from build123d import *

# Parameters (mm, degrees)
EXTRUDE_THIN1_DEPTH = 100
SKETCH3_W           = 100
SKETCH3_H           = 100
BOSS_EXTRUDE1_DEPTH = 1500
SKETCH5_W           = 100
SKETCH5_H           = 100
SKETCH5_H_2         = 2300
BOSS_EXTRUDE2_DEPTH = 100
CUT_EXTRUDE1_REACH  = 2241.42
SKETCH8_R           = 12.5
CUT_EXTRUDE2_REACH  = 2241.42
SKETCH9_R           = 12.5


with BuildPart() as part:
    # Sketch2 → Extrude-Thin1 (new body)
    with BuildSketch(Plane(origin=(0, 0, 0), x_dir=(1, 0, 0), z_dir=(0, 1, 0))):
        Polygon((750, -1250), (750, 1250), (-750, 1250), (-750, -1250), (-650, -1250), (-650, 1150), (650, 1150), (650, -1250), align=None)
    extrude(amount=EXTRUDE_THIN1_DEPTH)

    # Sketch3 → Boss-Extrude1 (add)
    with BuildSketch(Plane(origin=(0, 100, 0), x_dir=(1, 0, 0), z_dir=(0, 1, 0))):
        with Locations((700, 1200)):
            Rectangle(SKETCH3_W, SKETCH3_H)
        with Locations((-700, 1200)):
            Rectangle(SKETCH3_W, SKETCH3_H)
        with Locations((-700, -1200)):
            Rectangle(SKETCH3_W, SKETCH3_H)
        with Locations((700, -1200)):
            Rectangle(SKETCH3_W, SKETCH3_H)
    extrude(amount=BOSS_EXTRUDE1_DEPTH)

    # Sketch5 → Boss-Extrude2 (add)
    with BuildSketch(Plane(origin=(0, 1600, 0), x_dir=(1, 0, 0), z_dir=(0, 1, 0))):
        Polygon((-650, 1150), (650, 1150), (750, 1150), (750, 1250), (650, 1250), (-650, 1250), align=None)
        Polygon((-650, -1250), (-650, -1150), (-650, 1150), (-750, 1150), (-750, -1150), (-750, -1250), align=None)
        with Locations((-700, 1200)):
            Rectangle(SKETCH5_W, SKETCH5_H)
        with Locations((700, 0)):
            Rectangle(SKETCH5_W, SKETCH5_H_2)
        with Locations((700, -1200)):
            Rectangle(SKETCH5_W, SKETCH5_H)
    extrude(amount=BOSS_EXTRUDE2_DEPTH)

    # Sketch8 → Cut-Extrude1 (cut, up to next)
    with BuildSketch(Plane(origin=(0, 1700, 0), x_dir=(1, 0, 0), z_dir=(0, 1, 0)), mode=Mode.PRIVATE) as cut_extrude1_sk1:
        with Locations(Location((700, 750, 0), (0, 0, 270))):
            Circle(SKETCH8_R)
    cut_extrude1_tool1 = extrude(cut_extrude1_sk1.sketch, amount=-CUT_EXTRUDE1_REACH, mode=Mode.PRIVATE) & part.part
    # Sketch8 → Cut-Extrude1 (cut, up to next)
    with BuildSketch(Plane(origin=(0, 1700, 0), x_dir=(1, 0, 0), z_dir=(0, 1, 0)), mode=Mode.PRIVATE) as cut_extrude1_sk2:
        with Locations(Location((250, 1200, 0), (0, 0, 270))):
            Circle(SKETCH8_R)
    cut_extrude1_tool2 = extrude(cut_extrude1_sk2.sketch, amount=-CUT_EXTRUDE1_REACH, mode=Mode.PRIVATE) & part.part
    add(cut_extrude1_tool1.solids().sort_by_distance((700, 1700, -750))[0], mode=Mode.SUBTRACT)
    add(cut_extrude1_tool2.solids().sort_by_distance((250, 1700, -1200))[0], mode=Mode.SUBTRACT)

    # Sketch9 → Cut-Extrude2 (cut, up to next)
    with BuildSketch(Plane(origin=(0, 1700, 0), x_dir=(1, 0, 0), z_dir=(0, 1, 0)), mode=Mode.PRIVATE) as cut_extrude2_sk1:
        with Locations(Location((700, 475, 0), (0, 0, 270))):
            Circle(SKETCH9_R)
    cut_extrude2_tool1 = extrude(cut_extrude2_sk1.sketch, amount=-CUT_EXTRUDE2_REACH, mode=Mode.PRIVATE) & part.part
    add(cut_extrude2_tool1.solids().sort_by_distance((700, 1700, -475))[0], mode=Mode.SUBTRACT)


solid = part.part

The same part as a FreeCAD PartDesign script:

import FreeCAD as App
import Part
import Sketcher

doc = App.newDocument("Part")
params = doc.addObject("Spreadsheet::Sheet", "Params")
for row, (alias, value) in enumerate([
    ("sketch1_width", "1500 mm"),
    ("sketch1_width2", "100 mm"),
    ("sketch1_height", "2500 mm"),
    ("sketch1_height2", "2400 mm"),
    ("pad1_length", "100 mm"),
    ("sketch2_width", "100 mm"),
    ("pad2_length", "1500 mm"),
    ("sketch3_width", "1300 mm"),
    ("sketch3_width2", "100 mm"),
    ("sketch3_height", "2400 mm"),
    ("sketch3_height2", "2500 mm"),
    ("pad3_length", "100 mm"),
    ("sketch4_diameter", "25 mm"),
    ("sketch5_diameter", "25 mm"),
    ("sketch6_diameter", "25 mm"),
], start=1):
    params.set(f"A{row}", alias)
    params.set(f"B{row}", "=" + value)
    params.setAlias(f"B{row}", alias)

body = doc.addObject("PartDesign::Body", "Body")

# Sketch on XZ plane
sketch1 = body.newObject("Sketcher::SketchObject", "Sketch")
sketch1.AttachmentSupport = (doc.getObject("XZ_Plane"), [""])
sketch1.MapMode = "FlatFace"
sketch1.addGeometry([
    Part.LineSegment(App.Vector(750, 1250, 0), App.Vector(750, -1250, 0)),  # 0
    Part.LineSegment(App.Vector(750, -1250, 0), App.Vector(-750, -1250, 0)),  # 1
    Part.LineSegment(App.Vector(-750, -1250, 0), App.Vector(-750, 1250, 0)),  # 2
    Part.LineSegment(App.Vector(-750, 1250, 0), App.Vector(-650, 1250, 0)),  # 3
    Part.LineSegment(App.Vector(-650, 1250, 0), App.Vector(-650, -1150, 0)),  # 4
    Part.LineSegment(App.Vector(-650, -1150, 0), App.Vector(650, -1150, 0)),  # 5
    Part.LineSegment(App.Vector(650, -1150, 0), App.Vector(650, 1250, 0)),  # 6
    Part.LineSegment(App.Vector(650, 1250, 0), App.Vector(750, 1250, 0)),  # 7
], False)
sketch1.addConstraint([
    Sketcher.Constraint("Coincident", 0, 2, 1, 1),
    Sketcher.Constraint("Coincident", 1, 2, 2, 1),
    Sketcher.Constraint("Coincident", 2, 2, 3, 1),
    Sketcher.Constraint("Coincident", 3, 2, 4, 1),
    Sketcher.Constraint("Coincident", 4, 2, 5, 1),
    Sketcher.Constraint("Coincident", 5, 2, 6, 1),
    Sketcher.Constraint("Coincident", 6, 2, 7, 1),
    Sketcher.Constraint("Coincident", 7, 2, 0, 1),
    Sketcher.Constraint("Vertical", 0),
    Sketcher.Constraint("Horizontal", 1),
    Sketcher.Constraint("Vertical", 2),
    Sketcher.Constraint("Horizontal", 3),
    Sketcher.Constraint("Vertical", 4),
    Sketcher.Constraint("Horizontal", 5),
    Sketcher.Constraint("Vertical", 6),
    Sketcher.Constraint("Horizontal", 7),
    Sketcher.Constraint("Symmetric", 0, 2, 2, 2, -1, 1),
    Sketcher.Constraint("Symmetric", 3, 2, 6, 2, -2),
    Sketcher.Constraint("DistanceX", 1, 2, 1, 1, 1500.0),
    Sketcher.Constraint("DistanceX", 3, 1, 3, 2, 100.0),
    Sketcher.Constraint("DistanceY", 0, 2, 0, 1, 2500.0),
    Sketcher.Constraint("DistanceY", 4, 2, 4, 1, 2400.0),
])
sketch1.setExpression("Constraints[18]", "Params.sketch1_width")
sketch1.setExpression("Constraints[19]", "Params.sketch1_width2")
sketch1.setExpression("Constraints[20]", "Params.sketch1_height")
sketch1.setExpression("Constraints[21]", "Params.sketch1_height2")
pad1 = body.newObject("PartDesign::Pad", "Pad")
pad1.Profile = sketch1
pad1.setExpression("Length", "Params.pad1_length")
pad1.Reversed = True

# Sketch on XZ plane
sketch2 = body.newObject("Sketcher::SketchObject", "Sketch001")
sketch2.AttachmentSupport = (doc.getObject("XZ_Plane"), [""])
sketch2.MapMode = "FlatFace"
sketch2.AttachmentOffset = App.Placement(App.Vector(0, 0, -100), App.Rotation())
sketch2.addGeometry([
    Part.LineSegment(App.Vector(650, -1250, 0), App.Vector(650, -1150, 0)),  # 0
    Part.LineSegment(App.Vector(650, -1150, 0), App.Vector(750, -1150, 0)),  # 1
    Part.LineSegment(App.Vector(750, -1150, 0), App.Vector(750, -1250, 0)),  # 2
    Part.LineSegment(App.Vector(750, -1250, 0), App.Vector(650, -1250, 0)),  # 3
    Part.LineSegment(App.Vector(-750, -1250, 0), App.Vector(-750, -1150, 0)),  # 4
    Part.LineSegment(App.Vector(-750, -1150, 0), App.Vector(-650, -1150, 0)),  # 5
    Part.LineSegment(App.Vector(-650, -1150, 0), App.Vector(-650, -1250, 0)),  # 6
    Part.LineSegment(App.Vector(-650, -1250, 0), App.Vector(-750, -1250, 0)),  # 7
    Part.LineSegment(App.Vector(-750, 1150, 0), App.Vector(-750, 1250, 0)),  # 8
    Part.LineSegment(App.Vector(-750, 1250, 0), App.Vector(-650, 1250, 0)),  # 9
    Part.LineSegment(App.Vector(-650, 1250, 0), App.Vector(-650, 1150, 0)),  # 10
    Part.LineSegment(App.Vector(-650, 1150, 0), App.Vector(-750, 1150, 0)),  # 11
    Part.LineSegment(App.Vector(650, 1150, 0), App.Vector(650, 1250, 0)),  # 12
    Part.LineSegment(App.Vector(650, 1250, 0), App.Vector(750, 1250, 0)),  # 13
    Part.LineSegment(App.Vector(750, 1250, 0), App.Vector(750, 1150, 0)),  # 14
    Part.LineSegment(App.Vector(750, 1150, 0), App.Vector(650, 1150, 0)),  # 15
], False)
sketch2.addConstraint([
    Sketcher.Constraint("Coincident", 0, 2, 1, 1),
    Sketcher.Constraint("Coincident", 1, 2, 2, 1),
    Sketcher.Constraint("Coincident", 2, 2, 3, 1),
    Sketcher.Constraint("Coincident", 3, 2, 0, 1),
    Sketcher.Constraint("Coincident", 4, 2, 5, 1),
    Sketcher.Constraint("Coincident", 5, 2, 6, 1),
    Sketcher.Constraint("Coincident", 6, 2, 7, 1),
    Sketcher.Constraint("Coincident", 7, 2, 4, 1),
    Sketcher.Constraint("Coincident", 8, 2, 9, 1),
    Sketcher.Constraint("Coincident", 9, 2, 10, 1),
    Sketcher.Constraint("Coincident", 10, 2, 11, 1),
    Sketcher.Constraint("Coincident", 11, 2, 8, 1),
    Sketcher.Constraint("Coincident", 12, 2, 13, 1),
    Sketcher.Constraint("Coincident", 13, 2, 14, 1),
    Sketcher.Constraint("Coincident", 14, 2, 15, 1),
    Sketcher.Constraint("Coincident", 15, 2, 12, 1),
    Sketcher.Constraint("Vertical", 0),
    Sketcher.Constraint("Horizontal", 1),
    Sketcher.Constraint("Vertical", 2),
    Sketcher.Constraint("Horizontal", 3),
    Sketcher.Constraint("Vertical", 4),
    Sketcher.Constraint("Horizontal", 5),
    Sketcher.Constraint("Vertical", 6),
    Sketcher.Constraint("Horizontal", 7),
    Sketcher.Constraint("Vertical", 8),
    Sketcher.Constraint("Horizontal", 9),
    Sketcher.Constraint("Vertical", 10),
    Sketcher.Constraint("Horizontal", 11),
    Sketcher.Constraint("Vertical", 12),
    Sketcher.Constraint("Horizontal", 13),
    Sketcher.Constraint("Vertical", 14),
    Sketcher.Constraint("Horizontal", 15),
    Sketcher.Constraint("Symmetric", 2, 2, 8, 2, -1, 1),
    Sketcher.Constraint("Symmetric", 0, 2, 10, 2, -1, 1),
    Sketcher.Constraint("Symmetric", 6, 2, 12, 2, -1, 1),
    Sketcher.Constraint("Symmetric", 4, 2, 14, 2, -1, 1),
    Sketcher.Constraint("Symmetric", 1, 2, 4, 2, -2),
    Sketcher.Constraint("Symmetric", 3, 2, 6, 2, -2),
    Sketcher.Constraint("Equal", 15, 0),
    Sketcher.Constraint("DistanceX", 1, 1, 1, 2, 100.0),
    Sketcher.Constraint("DistanceX", -1, 1, 0, 2, 650.0),
    Sketcher.Constraint("DistanceY", 0, 2, -1, 1, 1150.0),
])
sketch2.setExpression("Constraints[39]", "Params.sketch2_width")
pad2 = body.newObject("PartDesign::Pad", "Pad001")
pad2.Profile = sketch2
pad2.setExpression("Length", "Params.pad2_length")
pad2.Reversed = True

# Sketch on XZ plane
sketch3 = body.newObject("Sketcher::SketchObject", "Sketch002")
sketch3.AttachmentSupport = (doc.getObject("XZ_Plane"), [""])
sketch3.MapMode = "FlatFace"
sketch3.AttachmentOffset = App.Placement(App.Vector(0, 0, -1600), App.Rotation())
sketch3.addGeometry([
    Part.LineSegment(App.Vector(-650, -1150, 0), App.Vector(650, -1150, 0)),  # 0
    Part.LineSegment(App.Vector(650, -1150, 0), App.Vector(650, 1250, 0)),  # 1
    Part.LineSegment(App.Vector(650, 1250, 0), App.Vector(750, 1250, 0)),  # 2
    Part.LineSegment(App.Vector(750, 1250, 0), App.Vector(750, -1250, 0)),  # 3
    Part.LineSegment(App.Vector(750, -1250, 0), App.Vector(-750, -1250, 0)),  # 4
    Part.LineSegment(App.Vector(-750, -1250, 0), App.Vector(-750, 1250, 0)),  # 5
    Part.LineSegment(App.Vector(-750, 1250, 0), App.Vector(-650, 1250, 0)),  # 6
    Part.LineSegment(App.Vector(-650, 1250, 0), App.Vector(-650, -1150, 0)),  # 7
], False)
sketch3.addConstraint([
    Sketcher.Constraint("Coincident", 0, 2, 1, 1),
    Sketcher.Constraint("Coincident", 1, 2, 2, 1),
    Sketcher.Constraint("Coincident", 2, 2, 3, 1),
    Sketcher.Constraint("Coincident", 3, 2, 4, 1),
    Sketcher.Constraint("Coincident", 4, 2, 5, 1),
    Sketcher.Constraint("Coincident", 5, 2, 6, 1),
    Sketcher.Constraint("Coincident", 6, 2, 7, 1),
    Sketcher.Constraint("Coincident", 7, 2, 0, 1),
    Sketcher.Constraint("Horizontal", 0),
    Sketcher.Constraint("Vertical", 1),
    Sketcher.Constraint("Horizontal", 2),
    Sketcher.Constraint("Vertical", 3),
    Sketcher.Constraint("Horizontal", 4),
    Sketcher.Constraint("Vertical", 5),
    Sketcher.Constraint("Horizontal", 6),
    Sketcher.Constraint("Vertical", 7),
    Sketcher.Constraint("Symmetric", 2, 2, 4, 2, -1, 1),
    Sketcher.Constraint("Symmetric", 1, 2, 6, 2, -2),
    Sketcher.Constraint("DistanceX", 0, 1, 0, 2, 1300.0),
    Sketcher.Constraint("DistanceX", 2, 1, 2, 2, 100.0),
    Sketcher.Constraint("DistanceY", 1, 1, 1, 2, 2400.0),
    Sketcher.Constraint("DistanceY", 3, 2, 3, 1, 2500.0),
])
sketch3.setExpression("Constraints[18]", "Params.sketch3_width")
sketch3.setExpression("Constraints[19]", "Params.sketch3_width2")
sketch3.setExpression("Constraints[20]", "Params.sketch3_height")
sketch3.setExpression("Constraints[21]", "Params.sketch3_height2")
pad3 = body.newObject("PartDesign::Pad", "Pad002")
pad3.Profile = sketch3
pad3.setExpression("Length", "Params.pad3_length")
pad3.Reversed = True

# Sketch on XZ plane
sketch4 = body.newObject("Sketcher::SketchObject", "Sketch003")
sketch4.AttachmentSupport = (doc.getObject("XZ_Plane"), [""])
sketch4.MapMode = "FlatFace"
sketch4.AttachmentOffset = App.Placement(App.Vector(0, 0, -1700), App.Rotation())
sketch4.addGeometry(Part.Circle(App.Vector(700, -750, 0), App.Vector(0, 0, 1), 12), False)
sketch4.addConstraint([
    Sketcher.Constraint("Diameter", 0, 25.0),
    Sketcher.Constraint("DistanceX", -1, 1, 0, 3, 700.0),
    Sketcher.Constraint("DistanceY", 0, 3, -1, 1, 750.0),
])
sketch4.setExpression("Constraints[0]", "Params.sketch4_diameter")
pocket1 = body.newObject("PartDesign::Pocket", "Pocket")
pocket1.Profile = sketch4
pocket1.Type = "UpToFirst"
pocket1.Reversed = True

# Sketch on XZ plane
sketch5 = body.newObject("Sketcher::SketchObject", "Sketch004")
sketch5.AttachmentSupport = (doc.getObject("XZ_Plane"), [""])
sketch5.MapMode = "FlatFace"
sketch5.AttachmentOffset = App.Placement(App.Vector(0, 0, -1700), App.Rotation())
sketch5.addGeometry(Part.Circle(App.Vector(250, -1200, 0), App.Vector(0, 0, 1), 12), False)
sketch5.addConstraint([
    Sketcher.Constraint("Diameter", 0, 25.0),
    Sketcher.Constraint("DistanceX", -1, 1, 0, 3, 250.0),
    Sketcher.Constraint("DistanceY", 0, 3, -1, 1, 1200.0),
])
sketch5.setExpression("Constraints[0]", "Params.sketch5_diameter")
pocket2 = body.newObject("PartDesign::Pocket", "Pocket001")
pocket2.Profile = sketch5
pocket2.Type = "UpToFirst"
pocket2.Reversed = True

# Sketch on XZ plane
sketch6 = body.newObject("Sketcher::SketchObject", "Sketch005")
sketch6.AttachmentSupport = (doc.getObject("XZ_Plane"), [""])
sketch6.MapMode = "FlatFace"
sketch6.AttachmentOffset = App.Placement(App.Vector(0, 0, -1700), App.Rotation())
sketch6.addGeometry(Part.Circle(App.Vector(700, -475, 0), App.Vector(0, 0, 1), 12), False)
sketch6.addConstraint([
    Sketcher.Constraint("Diameter", 0, 25.0),
    Sketcher.Constraint("DistanceX", -1, 1, 0, 3, 700.0),
    Sketcher.Constraint("DistanceY", 0, 3, -1, 1, 475.0),
])
sketch6.setExpression("Constraints[0]", "Params.sketch6_diameter")
pocket3 = body.newObject("PartDesign::Pocket", "Pocket002")
pocket3.Profile = sketch6
pocket3.Type = "UpToFirst"
pocket3.Reversed = True

doc.recompute()
